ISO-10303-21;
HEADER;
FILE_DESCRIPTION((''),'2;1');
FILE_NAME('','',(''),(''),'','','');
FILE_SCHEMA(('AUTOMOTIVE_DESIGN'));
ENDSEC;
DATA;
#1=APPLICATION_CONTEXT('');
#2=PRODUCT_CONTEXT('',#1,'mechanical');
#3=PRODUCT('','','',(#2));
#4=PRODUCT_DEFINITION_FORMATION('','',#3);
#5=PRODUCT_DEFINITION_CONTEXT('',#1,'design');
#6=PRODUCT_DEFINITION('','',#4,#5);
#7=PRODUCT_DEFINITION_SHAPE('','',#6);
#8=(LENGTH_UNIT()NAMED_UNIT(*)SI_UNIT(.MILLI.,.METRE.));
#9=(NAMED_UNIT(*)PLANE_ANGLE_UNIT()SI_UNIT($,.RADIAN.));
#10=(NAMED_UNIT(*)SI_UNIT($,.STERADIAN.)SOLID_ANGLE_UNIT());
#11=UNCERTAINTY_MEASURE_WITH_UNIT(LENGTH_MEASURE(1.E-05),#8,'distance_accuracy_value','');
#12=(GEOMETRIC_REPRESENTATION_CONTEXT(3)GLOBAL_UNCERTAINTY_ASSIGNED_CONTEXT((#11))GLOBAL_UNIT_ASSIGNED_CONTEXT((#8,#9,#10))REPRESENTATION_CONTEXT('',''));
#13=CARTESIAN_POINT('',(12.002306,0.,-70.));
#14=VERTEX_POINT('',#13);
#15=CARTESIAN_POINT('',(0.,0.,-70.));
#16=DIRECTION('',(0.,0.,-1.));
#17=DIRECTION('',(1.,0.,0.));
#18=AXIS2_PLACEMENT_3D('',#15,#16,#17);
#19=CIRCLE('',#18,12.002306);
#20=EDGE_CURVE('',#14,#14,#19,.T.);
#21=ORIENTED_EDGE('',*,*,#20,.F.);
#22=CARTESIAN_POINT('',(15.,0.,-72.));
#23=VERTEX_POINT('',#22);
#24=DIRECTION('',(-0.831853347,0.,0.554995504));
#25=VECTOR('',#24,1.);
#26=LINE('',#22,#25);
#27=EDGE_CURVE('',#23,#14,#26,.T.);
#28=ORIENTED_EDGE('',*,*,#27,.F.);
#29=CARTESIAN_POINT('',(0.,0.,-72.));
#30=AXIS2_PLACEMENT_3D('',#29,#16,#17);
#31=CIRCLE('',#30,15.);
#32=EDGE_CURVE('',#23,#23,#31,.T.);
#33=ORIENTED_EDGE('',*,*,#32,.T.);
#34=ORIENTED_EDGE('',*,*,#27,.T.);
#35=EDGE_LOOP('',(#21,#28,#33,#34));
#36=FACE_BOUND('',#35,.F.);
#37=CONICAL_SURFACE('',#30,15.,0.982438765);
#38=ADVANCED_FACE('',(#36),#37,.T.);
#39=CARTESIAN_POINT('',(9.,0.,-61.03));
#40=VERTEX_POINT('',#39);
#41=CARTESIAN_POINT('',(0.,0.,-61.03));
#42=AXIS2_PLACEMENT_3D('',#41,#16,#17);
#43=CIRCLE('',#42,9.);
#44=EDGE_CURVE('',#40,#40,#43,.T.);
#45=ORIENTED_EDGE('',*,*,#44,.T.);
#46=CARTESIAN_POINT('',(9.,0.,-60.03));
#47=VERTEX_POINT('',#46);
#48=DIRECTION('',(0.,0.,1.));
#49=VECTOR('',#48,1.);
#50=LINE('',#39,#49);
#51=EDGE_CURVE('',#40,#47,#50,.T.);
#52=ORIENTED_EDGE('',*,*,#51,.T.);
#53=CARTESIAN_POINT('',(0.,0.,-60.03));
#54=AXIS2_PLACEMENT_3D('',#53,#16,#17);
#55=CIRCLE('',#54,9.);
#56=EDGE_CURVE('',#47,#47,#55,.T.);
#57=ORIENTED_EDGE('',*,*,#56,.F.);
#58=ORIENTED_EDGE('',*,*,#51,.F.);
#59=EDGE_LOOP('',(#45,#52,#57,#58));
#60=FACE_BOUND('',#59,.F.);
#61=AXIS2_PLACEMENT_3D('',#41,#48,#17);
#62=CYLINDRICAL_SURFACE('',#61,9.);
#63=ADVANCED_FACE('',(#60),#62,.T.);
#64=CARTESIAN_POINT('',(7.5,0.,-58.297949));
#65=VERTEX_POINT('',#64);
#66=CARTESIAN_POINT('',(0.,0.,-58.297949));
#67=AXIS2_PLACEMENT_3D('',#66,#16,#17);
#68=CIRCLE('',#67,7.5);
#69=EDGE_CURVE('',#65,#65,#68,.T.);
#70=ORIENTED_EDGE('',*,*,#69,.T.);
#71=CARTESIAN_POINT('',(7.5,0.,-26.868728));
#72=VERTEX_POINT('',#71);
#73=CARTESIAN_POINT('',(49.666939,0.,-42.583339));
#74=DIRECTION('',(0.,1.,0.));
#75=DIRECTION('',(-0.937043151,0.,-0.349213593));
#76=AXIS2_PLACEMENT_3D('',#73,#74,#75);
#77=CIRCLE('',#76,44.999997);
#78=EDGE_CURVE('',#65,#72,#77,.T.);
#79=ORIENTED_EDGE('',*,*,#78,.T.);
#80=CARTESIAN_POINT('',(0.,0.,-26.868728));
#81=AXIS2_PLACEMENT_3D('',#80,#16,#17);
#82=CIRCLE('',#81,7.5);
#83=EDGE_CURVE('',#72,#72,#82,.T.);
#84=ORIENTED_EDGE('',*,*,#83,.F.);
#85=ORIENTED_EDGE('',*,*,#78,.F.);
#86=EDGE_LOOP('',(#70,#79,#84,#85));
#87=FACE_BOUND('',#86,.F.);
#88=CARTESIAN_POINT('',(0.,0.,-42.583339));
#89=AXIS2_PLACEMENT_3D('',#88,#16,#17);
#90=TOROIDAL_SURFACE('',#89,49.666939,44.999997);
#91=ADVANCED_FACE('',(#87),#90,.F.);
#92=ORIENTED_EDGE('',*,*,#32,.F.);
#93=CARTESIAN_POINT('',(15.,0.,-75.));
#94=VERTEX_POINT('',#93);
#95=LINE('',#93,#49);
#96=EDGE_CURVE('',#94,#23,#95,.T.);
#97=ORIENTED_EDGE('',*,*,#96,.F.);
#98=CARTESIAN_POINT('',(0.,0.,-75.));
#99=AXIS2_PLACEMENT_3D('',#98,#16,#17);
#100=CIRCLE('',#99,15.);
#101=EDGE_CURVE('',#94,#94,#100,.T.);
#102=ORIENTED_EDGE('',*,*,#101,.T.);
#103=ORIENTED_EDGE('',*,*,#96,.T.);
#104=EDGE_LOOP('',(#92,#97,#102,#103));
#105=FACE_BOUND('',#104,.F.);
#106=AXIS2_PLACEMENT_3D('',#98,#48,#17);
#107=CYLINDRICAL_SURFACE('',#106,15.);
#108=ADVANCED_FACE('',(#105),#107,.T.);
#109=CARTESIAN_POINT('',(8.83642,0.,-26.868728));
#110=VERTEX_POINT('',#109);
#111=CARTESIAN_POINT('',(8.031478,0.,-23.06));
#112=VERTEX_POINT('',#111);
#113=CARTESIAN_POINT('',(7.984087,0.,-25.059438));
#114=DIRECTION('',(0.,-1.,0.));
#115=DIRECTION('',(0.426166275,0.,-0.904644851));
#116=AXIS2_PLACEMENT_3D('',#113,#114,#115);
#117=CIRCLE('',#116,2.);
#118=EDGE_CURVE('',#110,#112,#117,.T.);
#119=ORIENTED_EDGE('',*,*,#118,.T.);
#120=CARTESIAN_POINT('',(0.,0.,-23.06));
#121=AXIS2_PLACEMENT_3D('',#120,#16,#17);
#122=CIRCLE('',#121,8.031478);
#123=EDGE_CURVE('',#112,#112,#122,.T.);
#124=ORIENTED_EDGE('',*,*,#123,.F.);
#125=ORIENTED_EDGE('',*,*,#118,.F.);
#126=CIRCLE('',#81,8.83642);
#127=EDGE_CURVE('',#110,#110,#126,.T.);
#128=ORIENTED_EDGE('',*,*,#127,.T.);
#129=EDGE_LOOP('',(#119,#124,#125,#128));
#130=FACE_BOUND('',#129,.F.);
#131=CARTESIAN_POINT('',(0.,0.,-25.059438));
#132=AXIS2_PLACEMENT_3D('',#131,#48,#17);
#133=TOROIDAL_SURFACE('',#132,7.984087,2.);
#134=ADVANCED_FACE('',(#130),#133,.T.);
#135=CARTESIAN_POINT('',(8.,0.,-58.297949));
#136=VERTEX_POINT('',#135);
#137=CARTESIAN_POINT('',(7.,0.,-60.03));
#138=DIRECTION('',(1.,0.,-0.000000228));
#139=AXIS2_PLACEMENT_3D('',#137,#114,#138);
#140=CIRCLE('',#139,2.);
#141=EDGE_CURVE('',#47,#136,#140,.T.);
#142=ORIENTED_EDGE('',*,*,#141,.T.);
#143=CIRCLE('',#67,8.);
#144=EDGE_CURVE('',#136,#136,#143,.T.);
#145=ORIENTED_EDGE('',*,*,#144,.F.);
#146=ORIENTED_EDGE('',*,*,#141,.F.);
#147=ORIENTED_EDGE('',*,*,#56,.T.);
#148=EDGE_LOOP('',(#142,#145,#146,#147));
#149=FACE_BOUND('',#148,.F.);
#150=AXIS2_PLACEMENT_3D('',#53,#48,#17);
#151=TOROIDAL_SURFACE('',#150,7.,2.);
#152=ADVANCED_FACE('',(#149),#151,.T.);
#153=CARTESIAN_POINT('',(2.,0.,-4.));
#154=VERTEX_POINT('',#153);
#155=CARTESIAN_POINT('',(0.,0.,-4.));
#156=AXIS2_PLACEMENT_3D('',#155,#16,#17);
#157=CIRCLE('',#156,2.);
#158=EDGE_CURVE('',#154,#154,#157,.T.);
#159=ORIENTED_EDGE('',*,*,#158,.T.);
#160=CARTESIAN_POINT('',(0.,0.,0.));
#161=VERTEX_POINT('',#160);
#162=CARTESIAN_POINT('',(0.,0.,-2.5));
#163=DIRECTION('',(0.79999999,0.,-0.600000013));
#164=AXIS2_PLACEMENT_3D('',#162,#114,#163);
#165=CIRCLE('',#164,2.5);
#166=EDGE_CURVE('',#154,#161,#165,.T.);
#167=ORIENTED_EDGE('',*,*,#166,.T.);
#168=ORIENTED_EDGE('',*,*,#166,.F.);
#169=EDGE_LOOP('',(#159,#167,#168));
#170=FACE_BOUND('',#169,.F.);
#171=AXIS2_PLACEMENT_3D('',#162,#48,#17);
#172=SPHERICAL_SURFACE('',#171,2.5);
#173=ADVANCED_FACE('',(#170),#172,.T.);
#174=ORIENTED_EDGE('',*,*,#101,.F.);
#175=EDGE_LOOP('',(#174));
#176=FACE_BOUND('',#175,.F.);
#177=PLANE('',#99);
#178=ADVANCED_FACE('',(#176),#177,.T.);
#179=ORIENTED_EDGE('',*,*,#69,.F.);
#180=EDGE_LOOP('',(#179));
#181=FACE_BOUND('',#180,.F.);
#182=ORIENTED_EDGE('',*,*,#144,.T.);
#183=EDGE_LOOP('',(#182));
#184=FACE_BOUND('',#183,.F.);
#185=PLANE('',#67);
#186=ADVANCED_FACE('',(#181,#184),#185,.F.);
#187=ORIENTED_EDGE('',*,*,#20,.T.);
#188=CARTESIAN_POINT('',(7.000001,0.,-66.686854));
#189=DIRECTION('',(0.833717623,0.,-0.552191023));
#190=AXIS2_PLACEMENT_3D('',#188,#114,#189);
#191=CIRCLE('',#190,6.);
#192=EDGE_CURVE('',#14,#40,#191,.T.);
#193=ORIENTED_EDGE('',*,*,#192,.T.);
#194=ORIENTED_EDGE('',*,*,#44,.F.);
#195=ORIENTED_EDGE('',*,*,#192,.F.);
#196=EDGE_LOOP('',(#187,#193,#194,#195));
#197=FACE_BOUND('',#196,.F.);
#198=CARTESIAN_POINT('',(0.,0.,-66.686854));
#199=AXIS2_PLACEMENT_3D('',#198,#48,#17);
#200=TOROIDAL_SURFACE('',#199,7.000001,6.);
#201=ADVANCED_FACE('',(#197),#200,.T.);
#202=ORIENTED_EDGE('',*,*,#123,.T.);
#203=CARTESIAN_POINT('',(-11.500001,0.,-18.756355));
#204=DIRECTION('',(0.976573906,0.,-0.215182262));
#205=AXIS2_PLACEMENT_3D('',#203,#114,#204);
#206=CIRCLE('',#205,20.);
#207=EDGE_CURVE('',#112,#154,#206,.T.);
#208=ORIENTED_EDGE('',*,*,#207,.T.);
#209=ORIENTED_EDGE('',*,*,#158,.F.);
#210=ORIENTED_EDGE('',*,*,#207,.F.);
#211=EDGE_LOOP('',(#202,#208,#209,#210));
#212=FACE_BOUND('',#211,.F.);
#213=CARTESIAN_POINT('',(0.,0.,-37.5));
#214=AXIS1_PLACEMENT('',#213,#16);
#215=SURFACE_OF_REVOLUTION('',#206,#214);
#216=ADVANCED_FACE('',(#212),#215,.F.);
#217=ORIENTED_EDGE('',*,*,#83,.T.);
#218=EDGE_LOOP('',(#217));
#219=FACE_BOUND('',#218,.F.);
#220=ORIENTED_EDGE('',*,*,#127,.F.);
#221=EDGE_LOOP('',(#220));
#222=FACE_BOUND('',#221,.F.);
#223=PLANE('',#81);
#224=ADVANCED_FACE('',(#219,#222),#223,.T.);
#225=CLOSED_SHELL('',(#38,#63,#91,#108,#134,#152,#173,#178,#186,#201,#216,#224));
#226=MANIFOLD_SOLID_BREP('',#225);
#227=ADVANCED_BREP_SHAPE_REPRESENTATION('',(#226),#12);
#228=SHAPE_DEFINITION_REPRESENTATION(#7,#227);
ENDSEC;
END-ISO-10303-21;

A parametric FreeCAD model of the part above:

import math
import FreeCAD as App
import Part
import Sketcher
from FreeCAD import Vector
Q = App.Units.Quantity

doc = App.newDocument("Part")
body = doc.addObject("PartDesign::Body", "Body")

# Sketch on XZ plane
sketch1 = doc.addObject("Sketcher::SketchObject", "Sketch")
body.addObject(sketch1)
sketch1.AttachmentSupport = (doc.XZ_Plane, [""])
sketch1.MapMode = "FlatFace"
sketch1.addGeometry([
    Part.ArcOfCircle(Part.Circle(Vector(0, -2.5, 0), Vector(0, 0, 1), 2.5), math.radians(-37), math.radians(90)),  # 0
    Part.LineSegment(Vector(0, 0, 0), Vector(0, -75, 0)),  # 1
    Part.LineSegment(Vector(0, -75, 0), Vector(15, -75, 0)),  # 2
    Part.LineSegment(Vector(15, -75, 0), Vector(15, -72, 0)),  # 3
    Part.LineSegment(Vector(15, -72, 0), Vector(12, -70, 0)),  # 4
    Part.ArcOfCircle(Part.Circle(Vector(7, -66.7, 0), Vector(0, 0, 1), 6), math.radians(-34), math.radians(71)),  # 5
    Part.LineSegment(Vector(9, -61, 0), Vector(9, -60, 0)),  # 6
    Part.ArcOfCircle(Part.Circle(Vector(7, -60, 0), Vector(0, 0, 1), 2), math.radians(0), math.radians(60)),  # 7
    Part.LineSegment(Vector(8, -58.3, 0), Vector(7.5, -58.3, 0)),  # 8
    Part.ArcOfCircle(Part.Circle(Vector(49.7, -42.6, 0), Vector(0, 0, 1), 45), math.radians(160), math.radians(200)),  # 9
    Part.LineSegment(Vector(7.5, -26.9, 0), Vector(8.8, -26.9, 0)),  # 10
    Part.ArcOfCircle(Part.Circle(Vector(8, -25.1, 0), Vector(0, 0, 1), 2), math.radians(-65), math.radians(89)),  # 11
    Part.ArcOfCircle(Part.Circle(Vector(-11.5, -18.8, 0), Vector(0, 0, 1), 20), math.radians(-12), math.radians(48)),  # 12
], False)
sketch1.addConstraint([
    Sketcher.Constraint("Coincident", 0, 2, 1, 1),
    Sketcher.Constraint("Coincident", 1, 2, 2, 1),
    Sketcher.Constraint("Coincident", 2, 2, 3, 1),
    Sketcher.Constraint("Coincident", 3, 2, 4, 1),
    Sketcher.Constraint("Coincident", 4, 2, 5, 1),
    Sketcher.Constraint("Coincident", 5, 2, 6, 1),
    Sketcher.Constraint("Tangent", 6, 2, 7, 1),
    Sketcher.Constraint("Coincident", 7, 2, 8, 1),
    Sketcher.Constraint("Coincident", 8, 2, 9, 2),
    Sketcher.Constraint("Coincident", 9, 1, 10, 1),
    Sketcher.Constraint("Coincident", 10, 2, 11, 1),
    Sketcher.Constraint("Coincident", 11, 2, 12, 1),
    Sketcher.Constraint("Coincident", 12, 2, 0, 1),
    Sketcher.Constraint("Vertical", 1),
    Sketcher.Constraint("Horizontal", 2),
    Sketcher.Constraint("Vertical", 3),
    Sketcher.Constraint("Vertical", 6),
    Sketcher.Constraint("Horizontal", 8),
    Sketcher.Constraint("Horizontal", 10),
    Sketcher.Constraint("Coincident", 0, 2, -1, 1),
    Sketcher.Constraint("Equal", 7, 11),
    Sketcher.Constraint("PointOnObject", 0, 3, -2),
    Sketcher.Constraint("Vertical", 5, 3, 7, 3),
    Sketcher.Constraint("Vertical", 8, 2, 9, 1),
    Sketcher.Constraint("Radius", 5, Q("6 mm")),
    Sketcher.Constraint("Radius", 7, Q("2 mm")),
    Sketcher.Constraint("Radius", 12, Q("20 mm")),
    Sketcher.Constraint("Radius", 0, Q("2.5 mm")),
    Sketcher.Constraint("DistanceX", 2, 1, 2, 2, Q("15 mm")),
    Sketcher.Constraint("DistanceY", 1, 2, 1, 1, Q("75 mm")),
    Sketcher.Constraint("DistanceY", 3, 1, 3, 2, Q("3 mm")),
    Sketcher.Constraint("DistanceY", 6, 1, 6, 2, Q("1 mm")),
    Sketcher.Constraint("DistanceX", 8, 2, 8, 1, Q("0.5 mm")),
    Sketcher.Constraint("DistanceX", -1, 1, 5, 3, Q("7.000001 mm")),
    Sketcher.Constraint("DistanceY", 4, 2, -1, 1, Q("70 mm")),
    Sketcher.Constraint("DistanceX", -1, 1, 7, 2, Q("8 mm")),
    Sketcher.Constraint("DistanceX", -1, 1, 12, 2, Q("2 mm")),
    Sketcher.Constraint("DistanceX", 12, 3, 9, 1, Q("19.000001 mm")),
    Sketcher.Constraint("DistanceY", 7, 3, -1, 1, Q("60.03 mm")),
    Sketcher.Constraint("DistanceY", 11, 2, -1, 1, Q("23.06 mm")),
    Sketcher.Constraint("Radius", 9, Q("44.999997 mm")),
    Sketcher.Constraint("DistanceX", 10, 1, 10, 2, Q("1.33642 mm")),
    Sketcher.Constraint("DistanceY", 9, 3, 11, 3, Q("17.5239 mm")),
])
revolution = doc.addObject("PartDesign::Revolution", "Revolution")
body.addObject(revolution)
revolution.Profile = sketch1
revolution.ReferenceAxis = (sketch1, ["V_Axis"])
revolution.Angle = 360

doc.recompute()
